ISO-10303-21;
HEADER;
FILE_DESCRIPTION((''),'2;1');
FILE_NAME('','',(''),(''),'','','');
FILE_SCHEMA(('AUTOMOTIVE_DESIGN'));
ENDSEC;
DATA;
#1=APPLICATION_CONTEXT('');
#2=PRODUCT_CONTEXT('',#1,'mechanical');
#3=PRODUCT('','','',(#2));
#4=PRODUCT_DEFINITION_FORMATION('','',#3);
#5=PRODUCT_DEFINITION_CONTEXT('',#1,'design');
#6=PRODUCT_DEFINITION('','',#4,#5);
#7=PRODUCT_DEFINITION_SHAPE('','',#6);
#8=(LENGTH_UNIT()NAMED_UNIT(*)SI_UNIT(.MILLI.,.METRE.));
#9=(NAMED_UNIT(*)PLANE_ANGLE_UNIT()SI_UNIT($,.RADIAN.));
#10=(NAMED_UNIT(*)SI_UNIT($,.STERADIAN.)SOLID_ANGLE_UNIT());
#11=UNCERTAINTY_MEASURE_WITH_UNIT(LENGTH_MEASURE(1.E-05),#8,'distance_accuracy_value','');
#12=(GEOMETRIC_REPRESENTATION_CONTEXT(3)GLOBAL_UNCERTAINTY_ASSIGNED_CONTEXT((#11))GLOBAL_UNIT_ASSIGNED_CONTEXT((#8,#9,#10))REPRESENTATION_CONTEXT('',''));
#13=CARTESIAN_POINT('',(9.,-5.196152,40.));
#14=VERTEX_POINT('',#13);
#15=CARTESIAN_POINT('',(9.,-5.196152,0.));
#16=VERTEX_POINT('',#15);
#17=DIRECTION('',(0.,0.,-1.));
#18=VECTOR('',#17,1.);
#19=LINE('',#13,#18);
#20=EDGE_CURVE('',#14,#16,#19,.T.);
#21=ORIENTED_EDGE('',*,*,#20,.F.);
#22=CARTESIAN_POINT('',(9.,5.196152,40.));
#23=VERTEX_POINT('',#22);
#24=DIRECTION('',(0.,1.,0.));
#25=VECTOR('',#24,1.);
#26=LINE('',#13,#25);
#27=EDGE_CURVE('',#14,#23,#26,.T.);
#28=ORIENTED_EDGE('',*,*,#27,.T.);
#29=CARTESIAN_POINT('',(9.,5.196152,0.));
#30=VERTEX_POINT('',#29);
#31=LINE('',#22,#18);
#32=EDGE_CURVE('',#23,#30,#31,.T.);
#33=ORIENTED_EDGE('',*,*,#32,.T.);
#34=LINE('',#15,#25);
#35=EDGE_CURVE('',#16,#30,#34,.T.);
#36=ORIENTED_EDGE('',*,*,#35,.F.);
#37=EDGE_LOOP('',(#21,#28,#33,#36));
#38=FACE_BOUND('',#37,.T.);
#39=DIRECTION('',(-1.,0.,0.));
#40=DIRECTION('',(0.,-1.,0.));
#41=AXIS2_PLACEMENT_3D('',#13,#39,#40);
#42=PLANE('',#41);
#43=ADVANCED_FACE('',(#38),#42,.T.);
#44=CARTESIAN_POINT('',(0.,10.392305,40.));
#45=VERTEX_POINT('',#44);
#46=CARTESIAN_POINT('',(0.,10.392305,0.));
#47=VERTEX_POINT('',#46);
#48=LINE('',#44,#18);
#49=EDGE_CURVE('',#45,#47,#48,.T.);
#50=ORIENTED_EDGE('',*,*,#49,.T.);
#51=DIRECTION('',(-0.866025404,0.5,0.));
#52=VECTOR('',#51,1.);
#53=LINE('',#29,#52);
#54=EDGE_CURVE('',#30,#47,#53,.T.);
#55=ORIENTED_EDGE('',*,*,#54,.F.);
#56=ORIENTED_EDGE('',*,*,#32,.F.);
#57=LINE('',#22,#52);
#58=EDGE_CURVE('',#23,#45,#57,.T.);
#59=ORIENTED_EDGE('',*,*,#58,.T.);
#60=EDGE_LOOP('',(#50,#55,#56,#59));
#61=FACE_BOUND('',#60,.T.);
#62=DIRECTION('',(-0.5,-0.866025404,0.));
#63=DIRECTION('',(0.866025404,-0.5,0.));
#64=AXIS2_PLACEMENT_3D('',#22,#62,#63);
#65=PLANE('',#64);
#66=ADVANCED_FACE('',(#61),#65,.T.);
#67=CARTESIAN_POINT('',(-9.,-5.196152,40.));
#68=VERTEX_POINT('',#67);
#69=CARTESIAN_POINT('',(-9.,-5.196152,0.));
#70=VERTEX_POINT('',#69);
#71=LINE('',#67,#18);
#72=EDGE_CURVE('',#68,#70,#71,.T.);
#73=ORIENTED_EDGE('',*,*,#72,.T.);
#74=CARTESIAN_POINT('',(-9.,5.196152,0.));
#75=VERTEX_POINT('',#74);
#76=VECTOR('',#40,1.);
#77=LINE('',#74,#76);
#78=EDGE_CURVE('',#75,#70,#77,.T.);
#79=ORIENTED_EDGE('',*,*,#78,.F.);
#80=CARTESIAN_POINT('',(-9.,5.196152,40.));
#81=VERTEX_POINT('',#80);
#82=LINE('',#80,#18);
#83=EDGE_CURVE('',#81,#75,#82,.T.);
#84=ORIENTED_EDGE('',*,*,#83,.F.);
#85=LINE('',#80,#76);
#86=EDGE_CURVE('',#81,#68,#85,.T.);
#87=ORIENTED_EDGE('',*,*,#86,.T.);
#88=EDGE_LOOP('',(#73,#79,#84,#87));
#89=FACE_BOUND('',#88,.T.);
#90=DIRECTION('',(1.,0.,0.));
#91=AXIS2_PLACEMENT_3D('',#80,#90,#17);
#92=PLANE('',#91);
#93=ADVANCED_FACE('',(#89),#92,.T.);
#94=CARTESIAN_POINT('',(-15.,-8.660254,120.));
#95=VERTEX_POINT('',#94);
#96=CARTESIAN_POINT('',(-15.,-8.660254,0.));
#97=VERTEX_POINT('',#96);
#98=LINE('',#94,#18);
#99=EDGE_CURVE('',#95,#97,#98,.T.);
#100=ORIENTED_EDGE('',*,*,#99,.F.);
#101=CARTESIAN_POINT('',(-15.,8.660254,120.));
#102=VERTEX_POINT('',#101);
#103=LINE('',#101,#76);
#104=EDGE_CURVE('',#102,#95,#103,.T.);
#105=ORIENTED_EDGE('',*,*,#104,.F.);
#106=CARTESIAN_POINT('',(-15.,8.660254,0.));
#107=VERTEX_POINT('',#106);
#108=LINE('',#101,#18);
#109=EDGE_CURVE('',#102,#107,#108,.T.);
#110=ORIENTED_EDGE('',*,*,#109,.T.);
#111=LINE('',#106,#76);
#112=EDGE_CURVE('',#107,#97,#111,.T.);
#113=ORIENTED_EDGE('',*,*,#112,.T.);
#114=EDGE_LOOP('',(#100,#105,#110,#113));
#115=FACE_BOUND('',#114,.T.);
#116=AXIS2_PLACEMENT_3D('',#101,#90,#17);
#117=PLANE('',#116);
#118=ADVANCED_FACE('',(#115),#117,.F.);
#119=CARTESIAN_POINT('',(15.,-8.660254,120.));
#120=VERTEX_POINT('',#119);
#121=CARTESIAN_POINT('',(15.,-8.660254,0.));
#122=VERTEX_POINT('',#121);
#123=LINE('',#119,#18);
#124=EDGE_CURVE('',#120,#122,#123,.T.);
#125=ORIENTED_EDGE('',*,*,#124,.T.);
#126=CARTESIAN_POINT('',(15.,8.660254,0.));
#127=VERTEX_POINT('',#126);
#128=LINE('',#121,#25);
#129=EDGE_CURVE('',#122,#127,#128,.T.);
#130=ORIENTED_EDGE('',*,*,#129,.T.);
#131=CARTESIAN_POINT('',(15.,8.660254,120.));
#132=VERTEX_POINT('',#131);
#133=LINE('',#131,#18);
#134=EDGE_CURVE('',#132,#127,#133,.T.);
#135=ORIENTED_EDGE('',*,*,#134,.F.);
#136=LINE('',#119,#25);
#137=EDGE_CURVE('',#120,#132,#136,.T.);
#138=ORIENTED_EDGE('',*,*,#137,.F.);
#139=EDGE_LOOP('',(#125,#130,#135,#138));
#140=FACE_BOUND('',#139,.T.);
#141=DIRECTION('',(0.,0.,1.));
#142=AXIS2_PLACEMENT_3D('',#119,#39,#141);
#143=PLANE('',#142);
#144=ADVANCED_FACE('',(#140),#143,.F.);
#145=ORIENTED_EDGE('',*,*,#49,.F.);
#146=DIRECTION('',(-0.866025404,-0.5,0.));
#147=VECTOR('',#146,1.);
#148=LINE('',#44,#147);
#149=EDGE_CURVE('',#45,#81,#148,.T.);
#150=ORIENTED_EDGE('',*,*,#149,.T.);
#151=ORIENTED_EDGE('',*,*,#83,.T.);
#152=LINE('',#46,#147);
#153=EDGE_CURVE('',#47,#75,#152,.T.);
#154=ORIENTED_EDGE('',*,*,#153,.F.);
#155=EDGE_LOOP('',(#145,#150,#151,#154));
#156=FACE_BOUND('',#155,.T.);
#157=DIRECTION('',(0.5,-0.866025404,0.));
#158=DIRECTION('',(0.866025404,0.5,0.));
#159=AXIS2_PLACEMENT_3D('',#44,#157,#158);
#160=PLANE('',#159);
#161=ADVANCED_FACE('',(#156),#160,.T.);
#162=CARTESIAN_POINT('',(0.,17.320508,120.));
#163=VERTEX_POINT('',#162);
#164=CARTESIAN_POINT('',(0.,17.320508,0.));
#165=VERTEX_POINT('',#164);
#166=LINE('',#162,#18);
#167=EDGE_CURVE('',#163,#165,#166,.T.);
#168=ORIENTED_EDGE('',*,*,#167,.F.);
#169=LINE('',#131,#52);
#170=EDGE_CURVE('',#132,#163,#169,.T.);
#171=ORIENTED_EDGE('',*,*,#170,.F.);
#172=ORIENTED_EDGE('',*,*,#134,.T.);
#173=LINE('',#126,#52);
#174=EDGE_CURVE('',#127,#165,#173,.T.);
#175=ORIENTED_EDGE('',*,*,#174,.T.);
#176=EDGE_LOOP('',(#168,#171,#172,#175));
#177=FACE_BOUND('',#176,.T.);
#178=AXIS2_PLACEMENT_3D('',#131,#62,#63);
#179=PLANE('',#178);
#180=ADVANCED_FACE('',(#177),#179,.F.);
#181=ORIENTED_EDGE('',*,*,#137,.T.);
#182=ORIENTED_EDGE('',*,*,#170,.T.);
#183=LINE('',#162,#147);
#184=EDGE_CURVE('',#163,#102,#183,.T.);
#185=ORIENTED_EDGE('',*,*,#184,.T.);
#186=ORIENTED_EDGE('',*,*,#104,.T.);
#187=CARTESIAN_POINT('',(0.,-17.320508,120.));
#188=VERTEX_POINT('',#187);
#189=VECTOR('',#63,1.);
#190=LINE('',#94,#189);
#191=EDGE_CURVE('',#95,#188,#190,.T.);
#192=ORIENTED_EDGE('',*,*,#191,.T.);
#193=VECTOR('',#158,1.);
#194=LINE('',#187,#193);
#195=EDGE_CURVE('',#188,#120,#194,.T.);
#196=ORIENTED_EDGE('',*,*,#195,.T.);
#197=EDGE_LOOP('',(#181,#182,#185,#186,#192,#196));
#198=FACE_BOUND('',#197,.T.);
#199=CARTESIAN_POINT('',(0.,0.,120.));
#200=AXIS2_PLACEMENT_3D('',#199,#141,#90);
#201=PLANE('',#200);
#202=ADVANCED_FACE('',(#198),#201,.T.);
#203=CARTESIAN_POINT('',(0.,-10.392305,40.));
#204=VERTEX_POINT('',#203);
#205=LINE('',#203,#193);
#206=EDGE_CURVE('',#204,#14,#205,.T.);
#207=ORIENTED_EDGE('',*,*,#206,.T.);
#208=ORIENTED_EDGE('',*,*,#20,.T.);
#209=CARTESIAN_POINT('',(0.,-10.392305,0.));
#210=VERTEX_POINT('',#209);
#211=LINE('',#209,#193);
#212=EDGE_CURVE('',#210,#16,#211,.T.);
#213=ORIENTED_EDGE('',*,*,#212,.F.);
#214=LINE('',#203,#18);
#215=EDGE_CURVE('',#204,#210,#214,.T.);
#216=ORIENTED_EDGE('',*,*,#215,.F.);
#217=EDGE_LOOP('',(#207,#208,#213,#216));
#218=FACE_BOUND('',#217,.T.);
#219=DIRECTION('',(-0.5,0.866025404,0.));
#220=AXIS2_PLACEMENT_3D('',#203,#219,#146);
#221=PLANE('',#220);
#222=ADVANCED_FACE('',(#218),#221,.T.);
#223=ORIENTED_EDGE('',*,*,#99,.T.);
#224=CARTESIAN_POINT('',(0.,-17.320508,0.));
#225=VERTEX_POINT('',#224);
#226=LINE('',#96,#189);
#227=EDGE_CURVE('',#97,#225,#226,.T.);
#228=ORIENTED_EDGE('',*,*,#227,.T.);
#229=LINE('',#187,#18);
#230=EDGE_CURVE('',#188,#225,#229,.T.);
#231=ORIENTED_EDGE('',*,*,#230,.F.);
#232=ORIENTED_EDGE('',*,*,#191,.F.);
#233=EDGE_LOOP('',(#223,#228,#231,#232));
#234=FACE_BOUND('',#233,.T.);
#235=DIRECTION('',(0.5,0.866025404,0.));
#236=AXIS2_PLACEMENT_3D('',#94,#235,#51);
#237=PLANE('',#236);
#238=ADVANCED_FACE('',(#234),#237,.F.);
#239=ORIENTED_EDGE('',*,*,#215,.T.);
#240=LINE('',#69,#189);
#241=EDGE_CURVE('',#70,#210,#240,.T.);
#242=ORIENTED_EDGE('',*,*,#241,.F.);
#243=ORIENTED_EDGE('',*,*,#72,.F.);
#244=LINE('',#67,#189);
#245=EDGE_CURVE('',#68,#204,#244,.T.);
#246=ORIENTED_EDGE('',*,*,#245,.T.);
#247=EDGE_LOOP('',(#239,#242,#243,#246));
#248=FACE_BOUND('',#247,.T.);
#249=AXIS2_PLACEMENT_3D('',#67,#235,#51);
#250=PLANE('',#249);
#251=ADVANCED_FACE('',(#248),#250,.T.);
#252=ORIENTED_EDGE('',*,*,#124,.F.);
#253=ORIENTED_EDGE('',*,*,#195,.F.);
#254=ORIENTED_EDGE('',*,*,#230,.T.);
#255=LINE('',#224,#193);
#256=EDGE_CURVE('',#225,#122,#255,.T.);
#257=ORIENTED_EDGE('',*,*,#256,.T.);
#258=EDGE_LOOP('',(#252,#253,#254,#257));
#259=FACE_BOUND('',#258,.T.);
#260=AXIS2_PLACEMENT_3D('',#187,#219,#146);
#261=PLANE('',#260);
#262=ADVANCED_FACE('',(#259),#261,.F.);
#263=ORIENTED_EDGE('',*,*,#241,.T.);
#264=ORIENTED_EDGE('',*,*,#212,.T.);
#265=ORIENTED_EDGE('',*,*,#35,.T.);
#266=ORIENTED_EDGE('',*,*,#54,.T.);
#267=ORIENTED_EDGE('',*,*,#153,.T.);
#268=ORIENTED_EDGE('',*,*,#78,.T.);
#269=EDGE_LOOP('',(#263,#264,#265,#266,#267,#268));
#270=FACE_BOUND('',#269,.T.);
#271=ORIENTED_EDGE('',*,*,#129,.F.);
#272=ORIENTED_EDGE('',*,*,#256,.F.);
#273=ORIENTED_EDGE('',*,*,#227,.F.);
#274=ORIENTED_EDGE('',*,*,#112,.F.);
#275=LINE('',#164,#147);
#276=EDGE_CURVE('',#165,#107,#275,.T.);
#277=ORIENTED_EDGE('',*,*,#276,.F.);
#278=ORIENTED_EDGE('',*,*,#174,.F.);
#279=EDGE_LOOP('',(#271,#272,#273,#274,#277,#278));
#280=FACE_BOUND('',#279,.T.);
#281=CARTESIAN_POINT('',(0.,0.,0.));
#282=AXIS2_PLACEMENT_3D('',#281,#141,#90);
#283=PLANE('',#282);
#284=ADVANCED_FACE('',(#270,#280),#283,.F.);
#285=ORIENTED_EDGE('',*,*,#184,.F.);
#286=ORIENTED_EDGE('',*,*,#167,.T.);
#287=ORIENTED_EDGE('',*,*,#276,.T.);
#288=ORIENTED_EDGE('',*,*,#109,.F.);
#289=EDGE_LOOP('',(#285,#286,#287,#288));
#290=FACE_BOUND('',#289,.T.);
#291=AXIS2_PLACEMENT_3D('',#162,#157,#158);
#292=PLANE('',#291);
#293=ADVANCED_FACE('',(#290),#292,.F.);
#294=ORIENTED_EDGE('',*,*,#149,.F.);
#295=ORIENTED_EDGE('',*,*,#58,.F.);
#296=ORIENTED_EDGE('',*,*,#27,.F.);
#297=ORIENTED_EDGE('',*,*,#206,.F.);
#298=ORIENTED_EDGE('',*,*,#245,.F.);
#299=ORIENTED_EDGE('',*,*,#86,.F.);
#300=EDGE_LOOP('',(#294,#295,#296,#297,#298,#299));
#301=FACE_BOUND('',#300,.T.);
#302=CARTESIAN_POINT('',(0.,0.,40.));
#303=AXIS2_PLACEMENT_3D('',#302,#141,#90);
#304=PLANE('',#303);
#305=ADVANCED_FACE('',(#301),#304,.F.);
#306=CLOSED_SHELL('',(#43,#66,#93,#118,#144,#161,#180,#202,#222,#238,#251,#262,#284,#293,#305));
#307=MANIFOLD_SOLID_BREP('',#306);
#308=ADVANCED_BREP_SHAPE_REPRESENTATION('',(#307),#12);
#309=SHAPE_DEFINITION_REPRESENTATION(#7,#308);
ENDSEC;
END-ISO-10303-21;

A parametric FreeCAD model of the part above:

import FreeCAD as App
import Part
import Sketcher

V = App.Vector
Q = App.Units.Quantity

doc = App.newDocument("Part")
body = doc.addObject("PartDesign::Body", "Body")

sketch1 = body.newObject("Sketcher::SketchObject", "Sketch")
sketch1.AttachmentSupport = (doc.getObject("XY_Plane"), [""])
sketch1.MapMode = "FlatFace"
sketch1.addGeometry([
    Part.LineSegment(V(15, 9, 0), V(0, 17, 0)),
    Part.LineSegment(V(0, 17, 0), V(-15, 9, 0)),
    Part.LineSegment(V(-15, 9, 0), V(-15, -9, 0)),
    Part.LineSegment(V(-15, -9, 0), V(0, -17, 0)),
    Part.LineSegment(V(0, -17, 0), V(15, -9, 0)),
    Part.LineSegment(V(15, -9, 0), V(15, 9, 0)),
], False)
sketch1.addConstraint([
    Sketcher.Constraint("Coincident", 0, 2, 1, 1),
    Sketcher.Constraint("Coincident", 1, 2, 2, 1),
    Sketcher.Constraint("Coincident", 2, 2, 3, 1),
    Sketcher.Constraint("Coincident", 3, 2, 4, 1),
    Sketcher.Constraint("Coincident", 4, 2, 5, 1),
    Sketcher.Constraint("Coincident", 5, 2, 0, 1),
    Sketcher.Constraint("Vertical", 2),
    Sketcher.Constraint("Vertical", 5),
    Sketcher.Constraint("Symmetric", 0, 2, 3, 2, -1, 1),
    Sketcher.Constraint("Symmetric", 1, 2, 4, 2, -1, 1),
    Sketcher.Constraint("PointOnObject", 0, 2, -2),
    Sketcher.Constraint("Parallel", 0, 3),
    Sketcher.Constraint("Horizontal", 2, 2, 4, 2),
    Sketcher.Constraint("Angle", 0, Q("150 deg")),
    Sketcher.Constraint("DistanceX", 1, 2, -1, 1, 15.0),
    Sketcher.Constraint("DistanceY", 2, 2, 2, 1, 17.320508),
])
pad1 = body.newObject("PartDesign::Pad", "Pad")
pad1.Profile = sketch1
pad1.Length = 120

sketch2 = body.newObject("Sketcher::SketchObject", "Sketch001")
sketch2.AttachmentSupport = (doc.getObject("XY_Plane"), [""])
sketch2.MapMode = "FlatFace"
sketch2.addGeometry([
    Part.LineSegment(V(9, 5, 0), V(0, 10, 0)),
    Part.LineSegment(V(0, 10, 0), V(-9, 5, 0)),
    Part.LineSegment(V(-9, 5, 0), V(-9, -5, 0)),
    Part.LineSegment(V(-9, -5, 0), V(0, -10, 0)),
    Part.LineSegment(V(0, -10, 0), V(9, -5, 0)),
    Part.LineSegment(V(9, -5, 0), V(9, 5, 0)),
], False)
sketch2.addConstraint([
    Sketcher.Constraint("Coincident", 0, 2, 1, 1),
    Sketcher.Constraint("Coincident", 1, 2, 2, 1),
    Sketcher.Constraint("Coincident", 2, 2, 3, 1),
    Sketcher.Constraint("Coincident", 3, 2, 4, 1),
    Sketcher.Constraint("Coincident", 4, 2, 5, 1),
    Sketcher.Constraint("Coincident", 5, 2, 0, 1),
    Sketcher.Constraint("Vertical", 2),
    Sketcher.Constraint("Vertical", 5),
    Sketcher.Constraint("Symmetric", 0, 2, 3, 2, -1, 1),
    Sketcher.Constraint("Symmetric", 1, 2, 4, 2, -1, 1),
    Sketcher.Constraint("PointOnObject", 0, 2, -2),
    Sketcher.Constraint("Parallel", 0, 3),
    Sketcher.Constraint("Horizontal", 2, 2, 4, 2),
    Sketcher.Constraint("Angle", 0, Q("150 deg")),
    Sketcher.Constraint("DistanceX", 1, 2, -1, 1, 9.0),
    Sketcher.Constraint("DistanceY", 2, 2, 2, 1, 10.392305),
])
pocket1 = body.newObject("PartDesign::Pocket", "Pocket")
pocket1.Profile = sketch2
pocket1.Length = 40
pocket1.Reversed = True

doc.recompute()
